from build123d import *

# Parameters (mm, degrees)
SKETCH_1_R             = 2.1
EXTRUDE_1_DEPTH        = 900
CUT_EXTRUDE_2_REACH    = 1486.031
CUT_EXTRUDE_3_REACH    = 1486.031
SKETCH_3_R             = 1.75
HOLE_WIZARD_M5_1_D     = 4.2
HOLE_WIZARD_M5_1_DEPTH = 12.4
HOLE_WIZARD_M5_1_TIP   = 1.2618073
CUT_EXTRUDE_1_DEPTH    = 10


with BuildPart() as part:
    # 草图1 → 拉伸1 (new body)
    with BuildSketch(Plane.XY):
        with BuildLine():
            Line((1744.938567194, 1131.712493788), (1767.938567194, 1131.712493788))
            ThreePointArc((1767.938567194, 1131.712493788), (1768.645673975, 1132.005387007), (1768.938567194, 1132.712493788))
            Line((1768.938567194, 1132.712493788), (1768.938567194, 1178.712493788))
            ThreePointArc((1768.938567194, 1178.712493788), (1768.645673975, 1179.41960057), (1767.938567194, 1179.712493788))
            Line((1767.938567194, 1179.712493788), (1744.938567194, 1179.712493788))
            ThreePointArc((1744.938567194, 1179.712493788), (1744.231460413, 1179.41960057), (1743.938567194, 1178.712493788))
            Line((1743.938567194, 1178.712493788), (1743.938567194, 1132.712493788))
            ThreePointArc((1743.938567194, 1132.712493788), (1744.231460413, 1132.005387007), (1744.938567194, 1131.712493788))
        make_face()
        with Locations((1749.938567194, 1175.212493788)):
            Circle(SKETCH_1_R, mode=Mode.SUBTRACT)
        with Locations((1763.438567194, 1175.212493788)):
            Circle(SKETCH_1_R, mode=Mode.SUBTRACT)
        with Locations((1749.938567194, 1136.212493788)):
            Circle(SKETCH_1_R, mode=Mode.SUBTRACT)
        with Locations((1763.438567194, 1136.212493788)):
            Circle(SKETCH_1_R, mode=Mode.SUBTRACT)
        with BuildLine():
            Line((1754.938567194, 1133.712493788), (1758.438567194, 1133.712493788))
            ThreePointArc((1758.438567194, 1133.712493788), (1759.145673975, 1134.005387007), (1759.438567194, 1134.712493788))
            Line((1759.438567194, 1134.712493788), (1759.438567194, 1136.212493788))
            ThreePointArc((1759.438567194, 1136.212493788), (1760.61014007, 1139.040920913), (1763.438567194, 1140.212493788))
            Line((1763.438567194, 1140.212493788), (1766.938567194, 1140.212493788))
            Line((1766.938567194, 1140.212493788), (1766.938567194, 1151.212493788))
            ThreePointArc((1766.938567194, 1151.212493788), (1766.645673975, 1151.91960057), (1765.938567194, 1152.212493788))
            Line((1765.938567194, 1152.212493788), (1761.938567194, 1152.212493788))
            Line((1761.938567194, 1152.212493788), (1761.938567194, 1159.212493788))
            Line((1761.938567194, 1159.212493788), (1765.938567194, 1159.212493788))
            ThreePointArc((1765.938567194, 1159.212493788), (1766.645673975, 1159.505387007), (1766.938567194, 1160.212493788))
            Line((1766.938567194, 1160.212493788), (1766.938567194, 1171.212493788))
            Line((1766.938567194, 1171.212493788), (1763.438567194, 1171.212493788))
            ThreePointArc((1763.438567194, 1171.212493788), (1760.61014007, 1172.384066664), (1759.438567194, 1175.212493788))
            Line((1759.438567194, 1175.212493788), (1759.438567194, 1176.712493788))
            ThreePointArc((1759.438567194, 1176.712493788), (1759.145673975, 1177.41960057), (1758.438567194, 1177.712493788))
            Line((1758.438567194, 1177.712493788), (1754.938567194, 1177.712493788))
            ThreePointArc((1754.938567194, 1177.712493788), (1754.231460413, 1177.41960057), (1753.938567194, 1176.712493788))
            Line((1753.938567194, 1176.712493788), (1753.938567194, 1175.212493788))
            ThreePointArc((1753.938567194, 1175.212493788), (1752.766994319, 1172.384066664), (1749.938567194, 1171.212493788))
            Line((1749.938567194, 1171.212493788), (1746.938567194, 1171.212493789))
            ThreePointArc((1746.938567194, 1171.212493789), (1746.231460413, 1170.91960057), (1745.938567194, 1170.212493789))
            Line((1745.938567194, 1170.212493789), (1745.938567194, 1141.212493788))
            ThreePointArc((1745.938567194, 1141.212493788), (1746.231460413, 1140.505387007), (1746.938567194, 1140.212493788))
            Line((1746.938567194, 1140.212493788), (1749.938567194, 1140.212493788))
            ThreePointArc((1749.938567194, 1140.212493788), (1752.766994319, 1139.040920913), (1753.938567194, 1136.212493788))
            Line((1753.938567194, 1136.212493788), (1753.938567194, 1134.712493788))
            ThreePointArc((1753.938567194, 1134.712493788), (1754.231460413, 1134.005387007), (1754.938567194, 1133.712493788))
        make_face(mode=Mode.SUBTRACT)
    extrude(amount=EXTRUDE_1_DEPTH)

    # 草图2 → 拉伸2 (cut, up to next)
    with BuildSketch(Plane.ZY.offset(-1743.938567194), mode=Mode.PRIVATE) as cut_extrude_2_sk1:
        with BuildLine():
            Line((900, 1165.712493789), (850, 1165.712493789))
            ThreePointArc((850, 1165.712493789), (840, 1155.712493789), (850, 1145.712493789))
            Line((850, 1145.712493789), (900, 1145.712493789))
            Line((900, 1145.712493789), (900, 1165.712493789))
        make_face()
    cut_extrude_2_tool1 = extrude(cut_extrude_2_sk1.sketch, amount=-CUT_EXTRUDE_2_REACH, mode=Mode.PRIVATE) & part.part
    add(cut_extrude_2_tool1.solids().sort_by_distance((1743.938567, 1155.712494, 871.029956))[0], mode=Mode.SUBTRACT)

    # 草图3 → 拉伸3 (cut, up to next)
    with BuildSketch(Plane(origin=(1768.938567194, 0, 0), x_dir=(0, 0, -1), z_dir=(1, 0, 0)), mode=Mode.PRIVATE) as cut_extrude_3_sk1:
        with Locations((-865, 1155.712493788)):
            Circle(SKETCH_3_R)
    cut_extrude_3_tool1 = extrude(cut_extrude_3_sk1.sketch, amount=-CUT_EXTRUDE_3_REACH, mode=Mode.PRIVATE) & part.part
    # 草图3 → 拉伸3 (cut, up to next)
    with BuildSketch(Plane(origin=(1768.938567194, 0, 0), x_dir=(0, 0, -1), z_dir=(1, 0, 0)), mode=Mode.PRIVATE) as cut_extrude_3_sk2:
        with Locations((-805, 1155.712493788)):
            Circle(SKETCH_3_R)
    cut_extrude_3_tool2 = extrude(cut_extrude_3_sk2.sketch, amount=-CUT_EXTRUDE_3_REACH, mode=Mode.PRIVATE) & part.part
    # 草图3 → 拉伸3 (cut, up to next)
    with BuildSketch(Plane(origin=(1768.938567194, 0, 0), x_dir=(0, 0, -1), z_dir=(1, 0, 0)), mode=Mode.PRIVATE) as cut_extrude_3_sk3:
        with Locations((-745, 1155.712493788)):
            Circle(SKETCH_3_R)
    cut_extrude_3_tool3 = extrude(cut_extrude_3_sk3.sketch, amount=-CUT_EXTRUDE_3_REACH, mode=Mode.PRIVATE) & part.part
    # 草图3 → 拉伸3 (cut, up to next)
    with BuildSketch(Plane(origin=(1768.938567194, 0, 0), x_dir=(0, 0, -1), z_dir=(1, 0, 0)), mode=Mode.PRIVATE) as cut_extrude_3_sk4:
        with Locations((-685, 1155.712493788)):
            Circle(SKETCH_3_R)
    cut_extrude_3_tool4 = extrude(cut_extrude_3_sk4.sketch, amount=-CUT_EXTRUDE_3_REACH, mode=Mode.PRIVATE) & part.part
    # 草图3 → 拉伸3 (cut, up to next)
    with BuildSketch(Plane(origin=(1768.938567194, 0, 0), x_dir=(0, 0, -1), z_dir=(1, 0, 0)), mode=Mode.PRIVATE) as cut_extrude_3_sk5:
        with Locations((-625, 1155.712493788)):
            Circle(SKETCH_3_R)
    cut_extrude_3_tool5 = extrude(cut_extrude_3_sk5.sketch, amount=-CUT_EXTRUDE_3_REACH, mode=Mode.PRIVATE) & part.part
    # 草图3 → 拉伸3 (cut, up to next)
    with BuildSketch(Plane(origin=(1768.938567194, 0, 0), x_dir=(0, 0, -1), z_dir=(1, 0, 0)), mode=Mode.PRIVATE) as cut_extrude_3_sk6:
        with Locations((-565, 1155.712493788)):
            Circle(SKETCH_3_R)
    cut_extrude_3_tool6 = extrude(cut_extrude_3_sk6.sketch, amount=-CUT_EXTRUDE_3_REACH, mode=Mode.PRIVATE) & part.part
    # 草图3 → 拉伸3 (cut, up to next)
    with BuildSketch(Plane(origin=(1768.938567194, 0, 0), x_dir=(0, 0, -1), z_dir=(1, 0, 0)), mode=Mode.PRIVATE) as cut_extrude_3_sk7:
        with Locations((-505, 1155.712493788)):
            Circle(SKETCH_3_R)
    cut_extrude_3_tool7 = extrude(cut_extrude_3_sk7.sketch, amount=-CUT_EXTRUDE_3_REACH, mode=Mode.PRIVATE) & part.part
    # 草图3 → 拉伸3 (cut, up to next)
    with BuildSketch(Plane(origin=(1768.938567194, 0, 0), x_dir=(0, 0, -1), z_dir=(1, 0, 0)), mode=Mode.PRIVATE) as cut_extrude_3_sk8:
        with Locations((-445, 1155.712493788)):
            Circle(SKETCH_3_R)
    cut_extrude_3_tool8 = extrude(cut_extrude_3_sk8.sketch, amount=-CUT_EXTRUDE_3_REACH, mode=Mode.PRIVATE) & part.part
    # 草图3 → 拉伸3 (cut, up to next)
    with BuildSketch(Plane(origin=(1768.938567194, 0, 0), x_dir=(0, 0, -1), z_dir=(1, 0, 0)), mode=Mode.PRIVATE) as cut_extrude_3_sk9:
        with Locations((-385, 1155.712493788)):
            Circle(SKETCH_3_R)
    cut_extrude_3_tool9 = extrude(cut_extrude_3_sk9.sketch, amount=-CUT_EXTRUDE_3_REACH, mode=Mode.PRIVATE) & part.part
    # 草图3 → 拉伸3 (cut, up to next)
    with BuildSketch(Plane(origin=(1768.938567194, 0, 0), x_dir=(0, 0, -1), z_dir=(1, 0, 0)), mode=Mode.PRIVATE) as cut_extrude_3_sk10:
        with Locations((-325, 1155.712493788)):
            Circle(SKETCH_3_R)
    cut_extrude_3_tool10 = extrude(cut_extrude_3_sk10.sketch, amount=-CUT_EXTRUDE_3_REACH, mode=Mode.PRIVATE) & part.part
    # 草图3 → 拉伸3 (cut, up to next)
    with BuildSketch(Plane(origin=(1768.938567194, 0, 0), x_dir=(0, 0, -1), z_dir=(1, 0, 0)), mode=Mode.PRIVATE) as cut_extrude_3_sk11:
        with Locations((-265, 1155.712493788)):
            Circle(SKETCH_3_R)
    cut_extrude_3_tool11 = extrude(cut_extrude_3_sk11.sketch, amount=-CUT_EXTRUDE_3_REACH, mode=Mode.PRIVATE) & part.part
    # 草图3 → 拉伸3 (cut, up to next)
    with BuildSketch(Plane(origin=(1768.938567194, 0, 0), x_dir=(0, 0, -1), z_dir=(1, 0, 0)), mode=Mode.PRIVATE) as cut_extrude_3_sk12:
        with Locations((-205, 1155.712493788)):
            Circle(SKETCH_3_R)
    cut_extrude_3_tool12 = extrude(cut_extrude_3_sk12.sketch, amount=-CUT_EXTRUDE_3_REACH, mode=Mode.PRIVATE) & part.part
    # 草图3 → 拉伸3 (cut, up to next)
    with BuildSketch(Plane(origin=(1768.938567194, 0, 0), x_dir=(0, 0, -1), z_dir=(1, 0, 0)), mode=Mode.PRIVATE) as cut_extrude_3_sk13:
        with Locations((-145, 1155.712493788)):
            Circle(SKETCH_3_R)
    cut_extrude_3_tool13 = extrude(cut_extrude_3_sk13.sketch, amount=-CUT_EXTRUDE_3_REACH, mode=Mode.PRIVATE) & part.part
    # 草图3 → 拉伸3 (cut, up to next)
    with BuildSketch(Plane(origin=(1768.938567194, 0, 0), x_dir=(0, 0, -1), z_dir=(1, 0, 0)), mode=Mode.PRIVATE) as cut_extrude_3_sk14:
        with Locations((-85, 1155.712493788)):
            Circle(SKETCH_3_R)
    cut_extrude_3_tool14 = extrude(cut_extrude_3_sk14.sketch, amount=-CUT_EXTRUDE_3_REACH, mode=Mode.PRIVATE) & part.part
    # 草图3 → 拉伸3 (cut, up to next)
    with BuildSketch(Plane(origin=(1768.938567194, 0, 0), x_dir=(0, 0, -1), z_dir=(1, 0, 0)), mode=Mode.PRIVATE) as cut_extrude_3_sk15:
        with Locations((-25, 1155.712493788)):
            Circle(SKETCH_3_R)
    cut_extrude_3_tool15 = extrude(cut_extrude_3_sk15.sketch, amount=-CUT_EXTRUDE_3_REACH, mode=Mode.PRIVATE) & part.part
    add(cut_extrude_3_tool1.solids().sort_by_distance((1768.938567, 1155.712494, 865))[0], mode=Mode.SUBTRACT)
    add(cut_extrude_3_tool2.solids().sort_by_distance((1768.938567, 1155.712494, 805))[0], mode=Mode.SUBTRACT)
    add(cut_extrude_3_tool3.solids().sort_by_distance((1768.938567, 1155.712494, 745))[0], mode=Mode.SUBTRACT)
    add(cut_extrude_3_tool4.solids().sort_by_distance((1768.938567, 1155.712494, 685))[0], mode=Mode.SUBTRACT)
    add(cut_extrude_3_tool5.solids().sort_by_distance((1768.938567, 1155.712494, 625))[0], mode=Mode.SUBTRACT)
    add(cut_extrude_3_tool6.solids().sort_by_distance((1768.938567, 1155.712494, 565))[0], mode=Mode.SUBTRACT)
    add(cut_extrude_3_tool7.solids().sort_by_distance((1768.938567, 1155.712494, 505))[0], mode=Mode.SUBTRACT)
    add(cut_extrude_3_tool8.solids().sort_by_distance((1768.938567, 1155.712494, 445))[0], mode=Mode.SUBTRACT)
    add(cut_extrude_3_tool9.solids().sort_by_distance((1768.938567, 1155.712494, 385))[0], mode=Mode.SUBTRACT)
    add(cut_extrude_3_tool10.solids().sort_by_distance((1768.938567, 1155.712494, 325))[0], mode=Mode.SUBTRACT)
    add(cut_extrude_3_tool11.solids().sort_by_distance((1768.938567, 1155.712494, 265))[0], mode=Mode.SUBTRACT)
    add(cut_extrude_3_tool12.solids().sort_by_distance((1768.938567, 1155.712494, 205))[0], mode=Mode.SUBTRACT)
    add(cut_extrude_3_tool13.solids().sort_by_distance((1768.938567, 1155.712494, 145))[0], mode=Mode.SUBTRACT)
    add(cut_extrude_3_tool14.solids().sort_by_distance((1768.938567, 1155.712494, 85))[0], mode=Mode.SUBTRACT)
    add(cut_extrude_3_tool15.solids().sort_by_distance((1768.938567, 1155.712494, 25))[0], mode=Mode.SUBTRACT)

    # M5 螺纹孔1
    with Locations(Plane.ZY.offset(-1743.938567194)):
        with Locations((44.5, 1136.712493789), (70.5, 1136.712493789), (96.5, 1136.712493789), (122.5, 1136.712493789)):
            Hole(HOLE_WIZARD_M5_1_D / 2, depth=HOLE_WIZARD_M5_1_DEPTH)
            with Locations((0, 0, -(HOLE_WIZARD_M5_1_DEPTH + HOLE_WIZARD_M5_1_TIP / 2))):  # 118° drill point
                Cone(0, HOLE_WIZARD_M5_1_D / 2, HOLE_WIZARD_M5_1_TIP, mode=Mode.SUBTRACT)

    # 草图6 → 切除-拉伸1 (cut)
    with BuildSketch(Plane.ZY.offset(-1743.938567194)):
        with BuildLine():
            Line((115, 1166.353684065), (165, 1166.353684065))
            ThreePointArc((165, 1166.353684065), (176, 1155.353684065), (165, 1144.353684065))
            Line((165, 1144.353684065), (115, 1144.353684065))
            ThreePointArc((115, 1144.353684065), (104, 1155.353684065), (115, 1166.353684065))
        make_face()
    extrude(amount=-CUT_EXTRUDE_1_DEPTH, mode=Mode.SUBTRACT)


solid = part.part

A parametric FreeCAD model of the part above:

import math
import FreeCAD as App
import Part
import Sketcher

V = App.Vector

doc = App.newDocument("Part")
body = doc.addObject("PartDesign::Body", "Body")

# Sketch on XY plane
sketch1 = body.newObject("Sketcher::SketchObject", "Sketch")
sketch1.AttachmentSupport = (doc.getObject("XY_Plane"), [""])
sketch1.MapMode = "FlatFace"
sketch1.addGeometry(Part.LineSegment(V(1744.9, 1131.7, 0), V(1767.9, 1131.7, 0)), False)
sketch1.addGeometry(Part.ArcOfCircle(Part.Circle(V(1767.9, 1132.7, 0), V(0, 0, 1), 1), math.radians(-90), math.radians(0)), False)
sketch1.addGeometry(Part.LineSegment(V(1768.9, 1132.7, 0), V(1768.9, 1178.7, 0)), False)
sketch1.addGeometry(Part.ArcOfCircle(Part.Circle(V(1767.9, 1178.7, 0), V(0, 0, 1), 1), math.radians(0), math.radians(90)), False)
sketch1.addGeometry(Part.LineSegment(V(1767.9, 1179.7, 0), V(1744.9, 1179.7, 0)), False)
sketch1.addGeometry(Part.ArcOfCircle(Part.Circle(V(1744.9, 1178.7, 0), V(0, 0, 1), 1), math.radians(90), math.radians(180)), False)
sketch1.addGeometry(Part.LineSegment(V(1743.9, 1178.7, 0), V(1743.9, 1132.7, 0)), False)
sketch1.addGeometry(Part.ArcOfCircle(Part.Circle(V(1744.9, 1132.7, 0), V(0, 0, 1), 1), math.radians(-180), math.radians(-90)), False)
sketch1.addGeometry(Part.Circle(V(1749.9, 1136.2, 0), V(0, 0, 1), 2.1), False)
sketch1.addGeometry(Part.Circle(V(1763.4, 1136.2, 0), V(0, 0, 1), 2.1), False)
sketch1.addGeometry(Part.Circle(V(1749.9, 1175.2, 0), V(0, 0, 1), 2.1), False)
sketch1.addGeometry(Part.LineSegment(V(1758.4, 1133.7, 0), V(1754.9, 1133.7, 0)), False)
sketch1.addGeometry(Part.ArcOfCircle(Part.Circle(V(1754.9, 1134.7, 0), V(0, 0, 1), 1), math.radians(-180), math.radians(-90)), False)
sketch1.addGeometry(Part.LineSegment(V(1753.9, 1134.7, 0), V(1753.9, 1136.2, 0)), False)
sketch1.addGeometry(Part.ArcOfCircle(Part.Circle(V(1749.9, 1136.2, 0), V(0, 0, 1), 4), math.radians(0), math.radians(90)), False)
sketch1.addGeometry(Part.LineSegment(V(1749.9, 1140.2, 0), V(1746.9, 1140.2, 0)), False)
sketch1.addGeometry(Part.ArcOfCircle(Part.Circle(V(1746.9, 1141.2, 0), V(0, 0, 1), 1), math.radians(-180), math.radians(-90)), False)
sketch1.addGeometry(Part.LineSegment(V(1745.9, 1141.2, 0), V(1745.9, 1170.2, 0)), False)
sketch1.addGeometry(Part.ArcOfCircle(Part.Circle(V(1746.9, 1170.2, 0), V(0, 0, 1), 1), math.radians(90), math.radians(180)), False)
sketch1.addGeometry(Part.LineSegment(V(1746.9, 1171.2, 0), V(1749.9, 1171.2, 0)), False)
sketch1.addGeometry(Part.ArcOfCircle(Part.Circle(V(1749.9, 1175.2, 0), V(0, 0, 1), 4), math.radians(-90), math.radians(0)), False)
sketch1.addGeometry(Part.LineSegment(V(1753.9, 1175.2, 0), V(1753.9, 1176.7, 0)), False)
sketch1.addGeometry(Part.ArcOfCircle(Part.Circle(V(1754.9, 1176.7, 0), V(0, 0, 1), 1), math.radians(90), math.radians(180)), False)
sketch1.addGeometry(Part.LineSegment(V(1754.9, 1177.7, 0), V(1758.4, 1177.7, 0)), False)
sketch1.addGeometry(Part.ArcOfCircle(Part.Circle(V(1758.4, 1176.7, 0), V(0, 0, 1), 1), math.radians(0), math.radians(90)), False)
sketch1.addGeometry(Part.LineSegment(V(1759.4, 1176.7, 0), V(1759.4, 1175.2, 0)), False)
sketch1.addGeometry(Part.ArcOfCircle(Part.Circle(V(1763.4, 1175.2, 0), V(0, 0, 1), 4), math.radians(-180), math.radians(-90)), False)
sketch1.addGeometry(Part.LineSegment(V(1763.4, 1171.2, 0), V(1766.9, 1171.2, 0)), False)
sketch1.addGeometry(Part.LineSegment(V(1766.9, 1171.2, 0), V(1766.9, 1160.2, 0)), False)
sketch1.addGeometry(Part.ArcOfCircle(Part.Circle(V(1765.9, 1160.2, 0), V(0, 0, 1), 1), math.radians(-90), math.radians(0)), False)
sketch1.addGeometry(Part.LineSegment(V(1765.9, 1159.2, 0), V(1761.9, 1159.2, 0)), False)
sketch1.addGeometry(Part.LineSegment(V(1761.9, 1159.2, 0), V(1761.9, 1152.2, 0)), False)
sketch1.addGeometry(Part.LineSegment(V(1761.9, 1152.2, 0), V(1765.9, 1152.2, 0)), False)
sketch1.addGeometry(Part.ArcOfCircle(Part.Circle(V(1765.9, 1151.2, 0), V(0, 0, 1), 1), math.radians(0), math.radians(90)), False)
sketch1.addGeometry(Part.LineSegment(V(1766.9, 1151.2, 0), V(1766.9, 1140.2, 0)), False)
sketch1.addGeometry(Part.LineSegment(V(1766.9, 1140.2, 0), V(1763.4, 1140.2, 0)), False)
sketch1.addGeometry(Part.ArcOfCircle(Part.Circle(V(1763.4, 1136.2, 0), V(0, 0, 1), 4), math.radians(90), math.radians(180)), False)
sketch1.addGeometry(Part.LineSegment(V(1759.4, 1136.2, 0), V(1759.4, 1134.7, 0)), False)
sketch1.addGeometry(Part.ArcOfCircle(Part.Circle(V(1758.4, 1134.7, 0), V(0, 0, 1), 1), math.radians(-90), math.radians(0)), False)
sketch1.addGeometry(Part.Circle(V(1763.4, 1175.2, 0), V(0, 0, 1), 2.1), False)
sketch1.addConstraint(Sketcher.Constraint("Tangent", 0, 2, 1, 1))
sketch1.addConstraint(Sketcher.Constraint("Tangent", 1, 2, 2, 1))
sketch1.addConstraint(Sketcher.Constraint("Tangent", 2, 2, 3, 1))
sketch1.addConstraint(Sketcher.Constraint("Tangent", 3, 2, 4, 1))
sketch1.addConstraint(Sketcher.Constraint("Tangent", 4, 2, 5, 1))
sketch1.addConstraint(Sketcher.Constraint("Tangent", 5, 2, 6, 1))
sketch1.addConstraint(Sketcher.Constraint("Tangent", 6, 2, 7, 1))
sketch1.addConstraint(Sketcher.Constraint("Tangent", 7, 2, 0, 1))
sketch1.addConstraint(Sketcher.Constraint("Tangent", 11, 2, 12, 2))
sketch1.addConstraint(Sketcher.Constraint("Tangent", 12, 1, 13, 1))
sketch1.addConstraint(Sketcher.Constraint("Tangent", 13, 2, 14, 1))
sketch1.addConstraint(Sketcher.Constraint("Tangent", 14, 2, 15, 1))
sketch1.addConstraint(Sketcher.Constraint("Tangent", 15, 2, 16, 2))
sketch1.addConstraint(Sketcher.Constraint("Tangent", 16, 1, 17, 1))
sketch1.addConstraint(Sketcher.Constraint("Tangent", 17, 2, 18, 2))
sketch1.addConstraint(Sketcher.Constraint("Tangent", 18, 1, 19, 1))
sketch1.addConstraint(Sketcher.Constraint("Tangent", 19, 2, 20, 1))
sketch1.addConstraint(Sketcher.Constraint("Tangent", 20, 2, 21, 1))
sketch1.addConstraint(Sketcher.Constraint("Tangent", 21, 2, 22, 2))
sketch1.addConstraint(Sketcher.Constraint("Tangent", 22, 1, 23, 1))
sketch1.addConstraint(Sketcher.Constraint("Tangent", 23, 2, 24, 2))
sketch1.addConstraint(Sketcher.Constraint("Tangent", 24, 1, 25, 1))
sketch1.addConstraint(Sketcher.Constraint("Tangent", 25, 2, 26, 1))
sketch1.addConstraint(Sketcher.Constraint("Tangent", 26, 2, 27, 1))
sketch1.addConstraint(Sketcher.Constraint("Coincident", 27, 2, 28, 1))
sketch1.addConstraint(Sketcher.Constraint("Tangent", 28, 2, 29, 2))
sketch1.addConstraint(Sketcher.Constraint("Tangent", 29, 1, 30, 1))
sketch1.addConstraint(Sketcher.Constraint("Coincident", 30, 2, 31, 1))
sketch1.addConstraint(Sketcher.Constraint("Coincident", 31, 2, 32, 1))
sketch1.addConstraint(Sketcher.Constraint("Tangent", 32, 2, 33, 2))
sketch1.addConstraint(Sketcher.Constraint("Tangent", 33, 1, 34, 1))
sketch1.addConstraint(Sketcher.Constraint("Coincident", 34, 2, 35, 1))
sketch1.addConstraint(Sketcher.Constraint("Tangent", 35, 2, 36, 1))
sketch1.addConstraint(Sketcher.Constraint("Tangent", 36, 2, 37, 1))
sketch1.addConstraint(Sketcher.Constraint("Tangent", 37, 2, 38, 2))
sketch1.addConstraint(Sketcher.Constraint("Tangent", 38, 1, 11, 1))
sketch1.addConstraint(Sketcher.Constraint("Horizontal", 0))
sketch1.addConstraint(Sketcher.Constraint("Vertical", 2))
sketch1.addConstraint(Sketcher.Constraint("Horizontal", 4))
sketch1.addConstraint(Sketcher.Constraint("Vertical", 6))
sketch1.addConstraint(Sketcher.Constraint("Horizontal", 11))
sketch1.addConstraint(Sketcher.Constraint("Vertical", 13))
sketch1.addConstraint(Sketcher.Constraint("Horizontal", 15))
sketch1.addConstraint(Sketcher.Constraint("Vertical", 17))
sketch1.addConstraint(Sketcher.Constraint("Horizontal", 19))
sketch1.addConstraint(Sketcher.Constraint("Vertical", 21))
sketch1.addConstraint(Sketcher.Constraint("Horizontal", 23))
sketch1.addConstraint(Sketcher.Constraint("Vertical", 25))
sketch1.addConstraint(Sketcher.Constraint("Horizontal", 27))
sketch1.addConstraint(Sketcher.Constraint("Vertical", 28))
sketch1.addConstraint(Sketcher.Constraint("Horizontal", 30))
sketch1.addConstraint(Sketcher.Constraint("Vertical", 31))
sketch1.addConstraint(Sketcher.Constraint("Horizontal", 32))
sketch1.addConstraint(Sketcher.Constraint("Vertical", 34))
sketch1.addConstraint(Sketcher.Constraint("Horizontal", 35))
sketch1.addConstraint(Sketcher.Constraint("Vertical", 37))
sketch1.addConstraint(Sketcher.Constraint("Coincident", 14, 3, 8, 3))
sketch1.addConstraint(Sketcher.Constraint("Coincident", 20, 3, 10, 3))
sketch1.addConstraint(Sketcher.Constraint("Coincident", 36, 3, 9, 3))
sketch1.addConstraint(Sketcher.Constraint("Coincident", 39, 3, 26, 3))
sketch1.addConstraint(Sketcher.Constraint("Equal", 1, 3))
sketch1.addConstraint(Sketcher.Constraint("Equal", 3, 5))
sketch1.addConstraint(Sketcher.Constraint("Equal", 5, 7))
sketch1.addConstraint(Sketcher.Constraint("Equal", 8, 9))
sketch1.addConstraint(Sketcher.Constraint("Equal", 9, 10))
sketch1.addConstraint(Sketcher.Constraint("Equal", 7, 12))
sketch1.addConstraint(Sketcher.Constraint("Equal", 12, 16))
sketch1.addConstraint(Sketcher.Constraint("Equal", 16, 18))
sketch1.addConstraint(Sketcher.Constraint("Equal", 14, 20))
sketch1.addConstraint(Sketcher.Constraint("Equal", 18, 22))
sketch1.addConstraint(Sketcher.Constraint("Equal", 22, 24))
sketch1.addConstraint(Sketcher.Constraint("Equal", 20, 26))
sketch1.addConstraint(Sketcher.Constraint("Equal", 24, 29))
sketch1.addConstraint(Sketcher.Constraint("Equal", 29, 33))
sketch1.addConstraint(Sketcher.Constraint("Equal", 26, 36))
sketch1.addConstraint(Sketcher.Constraint("Equal", 33, 38))
sketch1.addConstraint(Sketcher.Constraint("Equal", 10, 39))
sketch1.addConstraint(Sketcher.Constraint("Horizontal", 8, 3, 9, 3))
sketch1.addConstraint(Sketcher.Constraint("Horizontal", 20, 3, 26, 3))
sketch1.addConstraint(Sketcher.Constraint("Vertical", 8, 3, 10, 3))
sketch1.addConstraint(Sketcher.Constraint("Vertical", 9, 3, 26, 3))
sketch1.addConstraint(Sketcher.Constraint("Vertical", 29, 3, 33, 3))
sketch1.addConstraint(Sketcher.Constraint("Equal", 23, 27))
sketch1.addConstraint(Sketcher.Constraint("Equal", 13, 21))
sketch1.addConstraint(Sketcher.Constraint("Equal", 28, 34))
sketch1.addConstraint(Sketcher.Constraint("Radius", 1, 1.0))
sketch1.addConstraint(Sketcher.Constraint("Radius", 14, 4.0))
sketch1.addConstraint(Sketcher.Constraint("Diameter", 8, 4.2))
sketch1.addConstraint(Sketcher.Constraint("DistanceX", 0, 1, 0, 2, 23.0))
sketch1.addConstraint(Sketcher.Constraint("DistanceX", 15, 2, 15, 1, 3.0))
sketch1.addConstraint(Sketcher.Constraint("DistanceX", 30, 2, 30, 1, 4.0))
sketch1.addConstraint(Sketcher.Constraint("DistanceY", 2, 1, 2, 2, 46.0))
sketch1.addConstraint(Sketcher.Constraint("DistanceY", 17, 1, 17, 2, 29.0))
sketch1.addConstraint(Sketcher.Constraint("DistanceY", 28, 2, 28, 1, 11.0))
sketch1.addConstraint(Sketcher.Constraint("DistanceX", 11, 2, 11, 1, 3.5))
sketch1.addConstraint(Sketcher.Constraint("DistanceY", 13, 1, 13, 2, 1.5))
sketch1.addConstraint(Sketcher.Constraint("DistanceX", 7, 3, 8, 3, 5.0))
sketch1.addConstraint(Sketcher.Constraint("DistanceY", 7, 3, 12, 3, 2.0))
sketch1.addConstraint(Sketcher.Constraint("DistanceX", -1, 1, 1, 3, 1767.938567))
sketch1.addConstraint(Sketcher.Constraint("DistanceY", -1, 1, 1, 3, 1132.712494))
pad1 = body.newObject("PartDesign::Pad", "Pad")
pad1.Profile = sketch1
pad1.Length = 900

# Sketch on YZ plane
sketch2 = body.newObject("Sketcher::SketchObject", "Sketch001")
sketch2.AttachmentSupport = (doc.getObject("YZ_Plane"), [""])
sketch2.MapMode = "FlatFace"
sketch2.AttachmentOffset = App.Placement(V(0, 0, 1743.938567), App.Rotation())
sketch2.addGeometry(Part.LineSegment(V(1166, 900, 0), V(1166, 850, 0)), False)
sketch2.addGeometry(Part.ArcOfCircle(Part.Circle(V(1156, 850, 0), V(0, 0, 1), 10), math.radians(180), math.radians(360)), False)
sketch2.addGeometry(Part.LineSegment(V(1146, 850, 0), V(1146, 900, 0)), False)
sketch2.addGeometry(Part.LineSegment(V(1146, 900, 0), V(1166, 900, 0)), False)
sketch2.addConstraint(Sketcher.Constraint("Tangent", 0, 2, 1, 2))
sketch2.addConstraint(Sketcher.Constraint("Tangent", 1, 1, 2, 1))
sketch2.addConstraint(Sketcher.Constraint("Coincident", 2, 2, 3, 1))
sketch2.addConstraint(Sketcher.Constraint("Coincident", 3, 2, 0, 1))
sketch2.addConstraint(Sketcher.Constraint("Vertical", 0))
sketch2.addConstraint(Sketcher.Constraint("Vertical", 2))
sketch2.addConstraint(Sketcher.Constraint("Horizontal", 3))
sketch2.addConstraint(Sketcher.Constraint("Radius", 1, 10.0))
sketch2.addConstraint(Sketcher.Constraint("DistanceY", 0, 2, 0, 1, 50.0))
sketch2.addConstraint(Sketcher.Constraint("DistanceY", -1, 1, 1, 3, 850.0))
sketch2.addConstraint(Sketcher.Constraint("DistanceX", -1, 1, 1, 3, 1155.712494))
pocket1 = body.newObject("PartDesign::Pocket", "Pocket")
pocket1.Profile = sketch2
pocket1.Type = "UpToFirst"
pocket1.Reversed = True

# Sketch on YZ plane
sketch3 = body.newObject("Sketcher::SketchObject", "Sketch002")
sketch3.AttachmentSupport = (doc.getObject("YZ_Plane"), [""])
sketch3.MapMode = "FlatFace"
sketch3.AttachmentOffset = App.Placement(V(0, 0, 1768.938567), App.Rotation())
sketch3.addGeometry(Part.Circle(V(1155.7, 865, 0), V(0, 0, 1), 1.8), False)
sketch3.addConstraint(Sketcher.Constraint("Diameter", 0, 3.5))
sketch3.addConstraint(Sketcher.Constraint("DistanceY", -1, 1, 0, 3, 865.0))
sketch3.addConstraint(Sketcher.Constraint("DistanceX", -1, 1, 0, 3, 1155.712494))
pocket2 = body.newObject("PartDesign::Pocket", "Pocket001")
pocket2.Profile = sketch3
pocket2.Type = "UpToFirst"

# Sketch on YZ plane
sketch4 = body.newObject("Sketcher::SketchObject", "Sketch003")
sketch4.AttachmentSupport = (doc.getObject("YZ_Plane"), [""])
sketch4.MapMode = "FlatFace"
sketch4.AttachmentOffset = App.Placement(V(0, 0, 1768.938567), App.Rotation())
sketch4.addGeometry(Part.Circle(V(1155.7, 805, 0), V(0, 0, 1), 1.8), False)
sketch4.addConstraint(Sketcher.Constraint("Diameter", 0, 3.5))
sketch4.addConstraint(Sketcher.Constraint("DistanceY", -1, 1, 0, 3, 805.0))
sketch4.addConstraint(Sketcher.Constraint("DistanceX", -1, 1, 0, 3, 1155.712494))
pocket3 = body.newObject("PartDesign::Pocket", "Pocket002")
pocket3.Profile = sketch4
pocket3.Type = "UpToFirst"

# Sketch on YZ plane
sketch5 = body.newObject("Sketcher::SketchObject", "Sketch004")
sketch5.AttachmentSupport = (doc.getObject("YZ_Plane"), [""])
sketch5.MapMode = "FlatFace"
sketch5.AttachmentOffset = App.Placement(V(0, 0, 1768.938567), App.Rotation())
sketch5.addGeometry(Part.Circle(V(1155.7, 745, 0), V(0, 0, 1), 1.8), False)
sketch5.addConstraint(Sketcher.Constraint("Diameter", 0, 3.5))
sketch5.addConstraint(Sketcher.Constraint("DistanceY", -1, 1, 0, 3, 745.0))
sketch5.addConstraint(Sketcher.Constraint("DistanceX", -1, 1, 0, 3, 1155.712494))
pocket4 = body.newObject("PartDesign::Pocket", "Pocket003")
pocket4.Profile = sketch5
pocket4.Type = "UpToFirst"

# Sketch on YZ plane
sketch6 = body.newObject("Sketcher::SketchObject", "Sketch005")
sketch6.AttachmentSupport = (doc.getObject("YZ_Plane"), [""])
sketch6.MapMode = "FlatFace"
sketch6.AttachmentOffset = App.Placement(V(0, 0, 1768.938567), App.Rotation())
sketch6.addGeometry(Part.Circle(V(1155.7, 685, 0), V(0, 0, 1), 1.8), False)
sketch6.addConstraint(Sketcher.Constraint("Diameter", 0, 3.5))
sketch6.addConstraint(Sketcher.Constraint("DistanceY", -1, 1, 0, 3, 685.0))
sketch6.addConstraint(Sketcher.Constraint("DistanceX", -1, 1, 0, 3, 1155.712494))
pocket5 = body.newObject("PartDesign::Pocket", "Pocket004")
pocket5.Profile = sketch6
pocket5.Type = "UpToFirst"

# Sketch on YZ plane
sketch7 = body.newObject("Sketcher::SketchObject", "Sketch006")
sketch7.AttachmentSupport = (doc.getObject("YZ_Plane"), [""])
sketch7.MapMode = "FlatFace"
sketch7.AttachmentOffset = App.Placement(V(0, 0, 1768.938567), App.Rotation())
sketch7.addGeometry(Part.Circle(V(1155.7, 625, 0), V(0, 0, 1), 1.8), False)
sketch7.addConstraint(Sketcher.Constraint("Diameter", 0, 3.5))
sketch7.addConstraint(Sketcher.Constraint("DistanceY", -1, 1, 0, 3, 625.0))
sketch7.addConstraint(Sketcher.Constraint("DistanceX", -1, 1, 0, 3, 1155.712494))
pocket6 = body.newObject("PartDesign::Pocket", "Pocket005")
pocket6.Profile = sketch7
pocket6.Type = "UpToFirst"

# Sketch on YZ plane
sketch8 = body.newObject("Sketcher::SketchObject", "Sketch007")
sketch8.AttachmentSupport = (doc.getObject("YZ_Plane"), [""])
sketch8.MapMode = "FlatFace"
sketch8.AttachmentOffset = App.Placement(V(0, 0, 1768.938567), App.Rotation())
sketch8.addGeometry(Part.Circle(V(1155.7, 565, 0), V(0, 0, 1), 1.8), False)
sketch8.addConstraint(Sketcher.Constraint("Diameter", 0, 3.5))
sketch8.addConstraint(Sketcher.Constraint("DistanceY", -1, 1, 0, 3, 565.0))
sketch8.addConstraint(Sketcher.Constraint("DistanceX", -1, 1, 0, 3, 1155.712494))
pocket7 = body.newObject("PartDesign::Pocket", "Pocket006")
pocket7.Profile = sketch8
pocket7.Type = "UpToFirst"

# Sketch on YZ plane
sketch9 = body.newObject("Sketcher::SketchObject", "Sketch008")
sketch9.AttachmentSupport = (doc.getObject("YZ_Plane"), [""])
sketch9.MapMode = "FlatFace"
sketch9.AttachmentOffset = App.Placement(V(0, 0, 1768.938567), App.Rotation())
sketch9.addGeometry(Part.Circle(V(1155.7, 505, 0), V(0, 0, 1), 1.8), False)
sketch9.addConstraint(Sketcher.Constraint("Diameter", 0, 3.5))
sketch9.addConstraint(Sketcher.Constraint("DistanceY", -1, 1, 0, 3, 505.0))
sketch9.addConstraint(Sketcher.Constraint("DistanceX", -1, 1, 0, 3, 1155.712494))
pocket8 = body.newObject("PartDesign::Pocket", "Pocket007")
pocket8.Profile = sketch9
pocket8.Type = "UpToFirst"

# Sketch on YZ plane
sketch10 = body.newObject("Sketcher::SketchObject", "Sketch009")
sketch10.AttachmentSupport = (doc.getObject("YZ_Plane"), [""])
sketch10.MapMode = "FlatFace"
sketch10.AttachmentOffset = App.Placement(V(0, 0, 1768.938567), App.Rotation())
sketch10.addGeometry(Part.Circle(V(1155.7, 445, 0), V(0, 0, 1), 1.8), False)
sketch10.addConstraint(Sketcher.Constraint("Diameter", 0, 3.5))
sketch10.addConstraint(Sketcher.Constraint("DistanceY", -1, 1, 0, 3, 445.0))
sketch10.addConstraint(Sketcher.Constraint("DistanceX", -1, 1, 0, 3, 1155.712494))
pocket9 = body.newObject("PartDesign::Pocket", "Pocket008")
pocket9.Profile = sketch10
pocket9.Type = "UpToFirst"

# Sketch on YZ plane
sketch11 = body.newObject("Sketcher::SketchObject", "Sketch010")
sketch11.AttachmentSupport = (doc.getObject("YZ_Plane"), [""])
sketch11.MapMode = "FlatFace"
sketch11.AttachmentOffset = App.Placement(V(0, 0, 1768.938567), App.Rotation())
sketch11.addGeometry(Part.Circle(V(1155.7, 385, 0), V(0, 0, 1), 1.8), False)
sketch11.addConstraint(Sketcher.Constraint("Diameter", 0, 3.5))
sketch11.addConstraint(Sketcher.Constraint("DistanceY", -1, 1, 0, 3, 385.0))
sketch11.addConstraint(Sketcher.Constraint("DistanceX", -1, 1, 0, 3, 1155.712494))
pocket10 = body.newObject("PartDesign::Pocket", "Pocket009")
pocket10.Profile = sketch11
pocket10.Type = "UpToFirst"

# Sketch on YZ plane
sketch12 = body.newObject("Sketcher::SketchObject", "Sketch011")
sketch12.AttachmentSupport = (doc.getObject("YZ_Plane"), [""])
sketch12.MapMode = "FlatFace"
sketch12.AttachmentOffset = App.Placement(V(0, 0, 1768.938567), App.Rotation())
sketch12.addGeometry(Part.Circle(V(1155.7, 325, 0), V(0, 0, 1), 1.8), False)
sketch12.addConstraint(Sketcher.Constraint("Diameter", 0, 3.5))
sketch12.addConstraint(Sketcher.Constraint("DistanceY", -1, 1, 0, 3, 325.0))
sketch12.addConstraint(Sketcher.Constraint("DistanceX", -1, 1, 0, 3, 1155.712494))
pocket11 = body.newObject("PartDesign::Pocket", "Pocket010")
pocket11.Profile = sketch12
pocket11.Type = "UpToFirst"

# Sketch on YZ plane
sketch13 = body.newObject("Sketcher::SketchObject", "Sketch012")
sketch13.AttachmentSupport = (doc.getObject("YZ_Plane"), [""])
sketch13.MapMode = "FlatFace"
sketch13.AttachmentOffset = App.Placement(V(0, 0, 1768.938567), App.Rotation())
sketch13.addGeometry(Part.Circle(V(1155.7, 265, 0), V(0, 0, 1), 1.8), False)
sketch13.addConstraint(Sketcher.Constraint("Diameter", 0, 3.5))
sketch13.addConstraint(Sketcher.Constraint("DistanceY", -1, 1, 0, 3, 265.0))
sketch13.addConstraint(Sketcher.Constraint("DistanceX", -1, 1, 0, 3, 1155.712494))
pocket12 = body.newObject("PartDesign::Pocket", "Pocket011")
pocket12.Profile = sketch13
pocket12.Type = "UpToFirst"

# Sketch on YZ plane
sketch14 = body.newObject("Sketcher::SketchObject", "Sketch013")
sketch14.AttachmentSupport = (doc.getObject("YZ_Plane"), [""])
sketch14.MapMode = "FlatFace"
sketch14.AttachmentOffset = App.Placement(V(0, 0, 1768.938567), App.Rotation())
sketch14.addGeometry(Part.Circle(V(1155.7, 205, 0), V(0, 0, 1), 1.8), False)
sketch14.addConstraint(Sketcher.Constraint("Diameter", 0, 3.5))
sketch14.addConstraint(Sketcher.Constraint("DistanceY", -1, 1, 0, 3, 205.0))
sketch14.addConstraint(Sketcher.Constraint("DistanceX", -1, 1, 0, 3, 1155.712494))
pocket13 = body.newObject("PartDesign::Pocket", "Pocket012")
pocket13.Profile = sketch14
pocket13.Type = "UpToFirst"

# Sketch on YZ plane
sketch15 = body.newObject("Sketcher::SketchObject", "Sketch014")
sketch15.AttachmentSupport = (doc.getObject("YZ_Plane"), [""])
sketch15.MapMode = "FlatFace"
sketch15.AttachmentOffset = App.Placement(V(0, 0, 1768.938567), App.Rotation())
sketch15.addGeometry(Part.Circle(V(1155.7, 145, 0), V(0, 0, 1), 1.8), False)
sketch15.addConstraint(Sketcher.Constraint("Diameter", 0, 3.5))
sketch15.addConstraint(Sketcher.Constraint("DistanceY", -1, 1, 0, 3, 145.0))
sketch15.addConstraint(Sketcher.Constraint("DistanceX", -1, 1, 0, 3, 1155.712494))
pocket14 = body.newObject("PartDesign::Pocket", "Pocket013")
pocket14.Profile = sketch15
pocket14.Type = "UpToFirst"

# Sketch on YZ plane
sketch16 = body.newObject("Sketcher::SketchObject", "Sketch015")
sketch16.AttachmentSupport = (doc.getObject("YZ_Plane"), [""])
sketch16.MapMode = "FlatFace"
sketch16.AttachmentOffset = App.Placement(V(0, 0, 1768.938567), App.Rotation())
sketch16.addGeometry(Part.Circle(V(1155.7, 85, 0), V(0, 0, 1), 1.8), False)
sketch16.addConstraint(Sketcher.Constraint("Diameter", 0, 3.5))
sketch16.addConstraint(Sketcher.Constraint("DistanceY", -1, 1, 0, 3, 85.0))
sketch16.addConstraint(Sketcher.Constraint("DistanceX", -1, 1, 0, 3, 1155.712494))
pocket15 = body.newObject("PartDesign::Pocket", "Pocket014")
pocket15.Profile = sketch16
pocket15.Type = "UpToFirst"

# Sketch on YZ plane
sketch17 = body.newObject("Sketcher::SketchObject", "Sketch016")
sketch17.AttachmentSupport = (doc.getObject("YZ_Plane"), [""])
sketch17.MapMode = "FlatFace"
sketch17.AttachmentOffset = App.Placement(V(0, 0, 1768.938567), App.Rotation())
sketch17.addGeometry(Part.Circle(V(1155.7, 25, 0), V(0, 0, 1), 1.8), False)
sketch17.addConstraint(Sketcher.Constraint("Diameter", 0, 3.5))
sketch17.addConstraint(Sketcher.Constraint("DistanceY", -1, 1, 0, 3, 25.0))
sketch17.addConstraint(Sketcher.Constraint("DistanceX", -1, 1, 0, 3, 1155.712494))
pocket16 = body.newObject("PartDesign::Pocket", "Pocket015")
pocket16.Profile = sketch17
pocket16.Type = "UpToFirst"

# Sketch on YZ plane
sketch18 = body.newObject("Sketcher::SketchObject", "Sketch017")
sketch18.AttachmentSupport = (doc.getObject("YZ_Plane"), [""])
sketch18.MapMode = "FlatFace"
sketch18.AttachmentOffset = App.Placement(V(0, 0, 1743.938567), App.Rotation())
sketch18.addGeometry(Part.Circle(V(1136.7, 44.5, 0), V(0, 0, 1), 2.1), False)
sketch18.addGeometry(Part.Circle(V(1136.7, 70.5, 0), V(0, 0, 1), 2.1), False)
sketch18.addGeometry(Part.Circle(V(1136.7, 96.5, 0), V(0, 0, 1), 2.1), False)
sketch18.addGeometry(Part.Circle(V(1136.7, 122.5, 0), V(0, 0, 1), 2.1), False)
sketch18.addConstraint(Sketcher.Constraint("Equal", 0, 1))
sketch18.addConstraint(Sketcher.Constraint("Equal", 1, 2))
sketch18.addConstraint(Sketcher.Constraint("Equal", 2, 3))
sketch18.addConstraint(Sketcher.Constraint("Vertical", 0, 3, 1, 3))
sketch18.addConstraint(Sketcher.Constraint("Vertical", 1, 3, 2, 3))
sketch18.addConstraint(Sketcher.Constraint("Vertical", 2, 3, 3, 3))
sketch18.addConstraint(Sketcher.Constraint("Diameter", 0, 4.2))
sketch18.addConstraint(Sketcher.Constraint("DistanceY", 0, 3, 1, 3, 26.0))
sketch18.addConstraint(Sketcher.Constraint("DistanceY", 1, 3, 2, 3, 26.0))
sketch18.addConstraint(Sketcher.Constraint("DistanceY", 2, 3, 3, 3, 26.0))
sketch18.addConstraint(Sketcher.Constraint("DistanceY", -1, 1, 0, 3, 44.5))
sketch18.addConstraint(Sketcher.Constraint("DistanceX", -1, 1, 0, 3, 1136.712494))
doc.recompute()
hole = body.newObject("PartDesign::Hole", "Hole")
hole.Profile = sketch18
hole.ThreadType = "None"
hole.Diameter = 4.2
hole.DepthType = "Dimension"
hole.Depth = 12.4
hole.DrillPoint = "Angled"
hole.DrillPointAngle = 118
hole.Reversed = True

# Sketch on YZ plane
sketch19 = body.newObject("Sketcher::SketchObject", "Sketch018")
sketch19.AttachmentSupport = (doc.getObject("YZ_Plane"), [""])
sketch19.MapMode = "FlatFace"
sketch19.AttachmentOffset = App.Placement(V(0, 0, 1743.938567), App.Rotation())
sketch19.addGeometry(Part.LineSegment(V(1166, 165, 0), V(1166, 115, 0)), False)
sketch19.addGeometry(Part.ArcOfCircle(Part.Circle(V(1155, 115, 0), V(0, 0, 1), 11), math.radians(180), math.radians(360)), False)
sketch19.addGeometry(Part.LineSegment(V(1144, 115, 0), V(1144, 165, 0)), False)
sketch19.addGeometry(Part.ArcOfCircle(Part.Circle(V(1155, 165, 0), V(0, 0, 1), 11), math.radians(0), math.radians(180)), False)
sketch19.addConstraint(Sketcher.Constraint("Tangent", 0, 2, 1, 2))
sketch19.addConstraint(Sketcher.Constraint("Tangent", 1, 1, 2, 1))
sketch19.addConstraint(Sketcher.Constraint("Tangent", 2, 2, 3, 2))
sketch19.addConstraint(Sketcher.Constraint("Tangent", 3, 1, 0, 1))
sketch19.addConstraint(Sketcher.Constraint("Vertical", 0))
sketch19.addConstraint(Sketcher.Constraint("Vertical", 2))
sketch19.addConstraint(Sketcher.Constraint("Radius", 1, 11.0))
sketch19.addConstraint(Sketcher.Constraint("DistanceY", 0, 2, 0, 1, 50.0))
sketch19.addConstraint(Sketcher.Constraint("DistanceY", -1, 1, 1, 3, 115.0))
sketch19.addConstraint(Sketcher.Constraint("DistanceX", -1, 1, 1, 3, 1155.353684))
pocket17 = body.newObject("PartDesign::Pocket", "Pocket016")
pocket17.Profile = sketch19
pocket17.Length = 10
pocket17.Reversed = True

doc.recompute()
